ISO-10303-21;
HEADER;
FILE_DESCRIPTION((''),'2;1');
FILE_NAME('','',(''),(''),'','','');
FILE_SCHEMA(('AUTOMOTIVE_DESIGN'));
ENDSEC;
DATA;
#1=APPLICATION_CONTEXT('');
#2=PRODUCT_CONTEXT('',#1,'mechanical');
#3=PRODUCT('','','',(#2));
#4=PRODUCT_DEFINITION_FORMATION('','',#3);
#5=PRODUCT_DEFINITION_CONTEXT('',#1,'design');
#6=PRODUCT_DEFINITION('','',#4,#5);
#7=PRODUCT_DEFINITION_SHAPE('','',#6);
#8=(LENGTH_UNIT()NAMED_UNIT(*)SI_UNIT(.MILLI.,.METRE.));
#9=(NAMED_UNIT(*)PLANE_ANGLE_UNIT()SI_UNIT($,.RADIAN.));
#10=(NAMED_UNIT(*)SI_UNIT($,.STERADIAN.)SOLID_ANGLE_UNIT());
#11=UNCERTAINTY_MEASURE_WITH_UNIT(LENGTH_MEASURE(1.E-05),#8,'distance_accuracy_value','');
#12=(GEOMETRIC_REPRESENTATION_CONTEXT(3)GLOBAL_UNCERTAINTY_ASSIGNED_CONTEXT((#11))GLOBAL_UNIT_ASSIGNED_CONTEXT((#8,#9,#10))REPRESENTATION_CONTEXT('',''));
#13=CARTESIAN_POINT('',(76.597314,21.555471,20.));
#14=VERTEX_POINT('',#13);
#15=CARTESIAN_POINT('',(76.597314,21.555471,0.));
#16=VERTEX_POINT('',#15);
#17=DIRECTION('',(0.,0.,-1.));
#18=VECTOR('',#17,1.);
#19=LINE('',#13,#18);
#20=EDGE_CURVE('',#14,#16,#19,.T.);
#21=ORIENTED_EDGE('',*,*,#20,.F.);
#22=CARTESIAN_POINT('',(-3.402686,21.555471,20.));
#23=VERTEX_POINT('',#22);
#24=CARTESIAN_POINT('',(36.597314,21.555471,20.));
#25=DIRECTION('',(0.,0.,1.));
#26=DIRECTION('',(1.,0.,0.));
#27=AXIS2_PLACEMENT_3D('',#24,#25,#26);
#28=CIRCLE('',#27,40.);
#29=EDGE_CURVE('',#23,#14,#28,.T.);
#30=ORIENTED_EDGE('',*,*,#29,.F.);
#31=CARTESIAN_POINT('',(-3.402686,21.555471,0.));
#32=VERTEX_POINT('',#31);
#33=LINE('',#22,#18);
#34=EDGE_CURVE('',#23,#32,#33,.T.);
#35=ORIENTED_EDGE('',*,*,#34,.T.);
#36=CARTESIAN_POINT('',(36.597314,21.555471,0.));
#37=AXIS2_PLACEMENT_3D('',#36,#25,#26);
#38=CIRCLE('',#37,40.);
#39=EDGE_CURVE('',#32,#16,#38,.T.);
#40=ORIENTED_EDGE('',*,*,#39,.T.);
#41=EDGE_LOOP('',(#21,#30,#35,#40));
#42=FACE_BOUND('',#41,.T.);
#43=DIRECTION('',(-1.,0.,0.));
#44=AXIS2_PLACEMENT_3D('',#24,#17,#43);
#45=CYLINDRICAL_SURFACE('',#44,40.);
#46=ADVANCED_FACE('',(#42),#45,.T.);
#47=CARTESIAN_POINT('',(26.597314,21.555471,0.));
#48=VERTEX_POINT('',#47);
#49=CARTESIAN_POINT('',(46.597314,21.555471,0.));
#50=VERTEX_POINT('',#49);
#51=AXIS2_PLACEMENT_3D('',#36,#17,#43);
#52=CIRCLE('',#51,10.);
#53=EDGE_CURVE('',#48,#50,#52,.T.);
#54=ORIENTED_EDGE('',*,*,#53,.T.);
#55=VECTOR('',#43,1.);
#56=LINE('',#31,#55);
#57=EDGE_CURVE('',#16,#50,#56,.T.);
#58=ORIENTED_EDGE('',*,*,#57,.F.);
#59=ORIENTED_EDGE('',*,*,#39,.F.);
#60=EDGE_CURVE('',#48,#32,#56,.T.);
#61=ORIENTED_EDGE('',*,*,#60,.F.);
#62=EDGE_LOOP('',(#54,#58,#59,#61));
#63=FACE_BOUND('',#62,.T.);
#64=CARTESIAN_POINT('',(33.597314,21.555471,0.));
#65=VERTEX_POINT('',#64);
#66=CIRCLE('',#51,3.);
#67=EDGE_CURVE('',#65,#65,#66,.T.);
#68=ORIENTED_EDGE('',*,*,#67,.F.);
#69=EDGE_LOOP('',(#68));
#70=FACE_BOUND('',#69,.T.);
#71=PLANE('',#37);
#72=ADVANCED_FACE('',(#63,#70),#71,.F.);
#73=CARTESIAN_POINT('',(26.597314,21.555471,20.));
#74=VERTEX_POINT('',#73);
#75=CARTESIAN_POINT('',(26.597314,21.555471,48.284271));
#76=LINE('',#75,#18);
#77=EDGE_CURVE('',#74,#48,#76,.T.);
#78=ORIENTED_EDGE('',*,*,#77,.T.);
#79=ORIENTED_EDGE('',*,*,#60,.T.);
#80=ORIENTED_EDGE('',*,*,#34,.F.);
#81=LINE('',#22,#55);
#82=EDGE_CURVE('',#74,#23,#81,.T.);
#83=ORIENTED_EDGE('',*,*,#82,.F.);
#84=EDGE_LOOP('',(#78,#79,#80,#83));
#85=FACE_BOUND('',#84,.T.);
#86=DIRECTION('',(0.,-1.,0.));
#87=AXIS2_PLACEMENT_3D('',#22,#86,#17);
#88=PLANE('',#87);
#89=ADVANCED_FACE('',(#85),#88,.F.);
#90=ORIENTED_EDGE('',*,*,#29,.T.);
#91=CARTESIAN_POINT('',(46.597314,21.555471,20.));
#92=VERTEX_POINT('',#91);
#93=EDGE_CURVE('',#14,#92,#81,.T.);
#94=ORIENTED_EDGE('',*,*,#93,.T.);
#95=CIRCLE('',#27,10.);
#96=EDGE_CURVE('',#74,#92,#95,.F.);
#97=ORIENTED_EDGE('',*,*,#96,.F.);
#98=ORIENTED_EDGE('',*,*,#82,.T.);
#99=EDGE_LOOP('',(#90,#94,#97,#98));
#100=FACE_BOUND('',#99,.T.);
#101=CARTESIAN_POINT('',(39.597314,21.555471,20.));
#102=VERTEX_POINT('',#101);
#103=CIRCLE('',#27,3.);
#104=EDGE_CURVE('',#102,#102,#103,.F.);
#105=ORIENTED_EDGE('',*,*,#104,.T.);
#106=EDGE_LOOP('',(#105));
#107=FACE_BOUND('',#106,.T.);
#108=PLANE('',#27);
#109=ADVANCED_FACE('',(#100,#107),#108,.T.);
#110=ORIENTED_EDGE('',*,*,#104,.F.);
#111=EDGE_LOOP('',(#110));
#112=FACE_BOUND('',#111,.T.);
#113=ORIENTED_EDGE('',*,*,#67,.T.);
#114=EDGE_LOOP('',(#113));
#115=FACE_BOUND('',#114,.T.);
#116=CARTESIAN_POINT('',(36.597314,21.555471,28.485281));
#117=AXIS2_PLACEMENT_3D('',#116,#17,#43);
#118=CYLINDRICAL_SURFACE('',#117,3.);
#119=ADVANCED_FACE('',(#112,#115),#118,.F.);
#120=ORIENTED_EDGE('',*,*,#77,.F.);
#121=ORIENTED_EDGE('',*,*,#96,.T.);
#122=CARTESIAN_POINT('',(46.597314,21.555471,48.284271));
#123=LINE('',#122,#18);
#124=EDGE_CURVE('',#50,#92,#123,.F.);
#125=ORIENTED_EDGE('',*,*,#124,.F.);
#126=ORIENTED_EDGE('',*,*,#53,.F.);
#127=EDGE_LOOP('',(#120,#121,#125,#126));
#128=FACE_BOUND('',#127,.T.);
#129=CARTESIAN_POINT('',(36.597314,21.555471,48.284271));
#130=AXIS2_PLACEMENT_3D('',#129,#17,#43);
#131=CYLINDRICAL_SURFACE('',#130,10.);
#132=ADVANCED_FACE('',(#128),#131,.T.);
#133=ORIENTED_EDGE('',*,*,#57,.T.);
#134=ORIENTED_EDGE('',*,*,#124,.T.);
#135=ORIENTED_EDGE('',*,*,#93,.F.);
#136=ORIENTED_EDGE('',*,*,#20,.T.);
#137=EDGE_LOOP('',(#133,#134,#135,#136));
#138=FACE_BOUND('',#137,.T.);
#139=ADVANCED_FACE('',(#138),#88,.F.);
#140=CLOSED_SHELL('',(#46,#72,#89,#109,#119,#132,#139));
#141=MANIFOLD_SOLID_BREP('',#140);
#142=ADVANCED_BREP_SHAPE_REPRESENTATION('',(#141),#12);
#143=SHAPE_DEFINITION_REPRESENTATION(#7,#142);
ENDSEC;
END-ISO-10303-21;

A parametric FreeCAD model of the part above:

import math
import FreeCAD as App
import Part
import Sketcher

V = App.Vector

doc = App.newDocument("Part")
params = doc.addObject("Spreadsheet::Sheet", "Params")
for row, (alias, value) in enumerate([
    ("sketch1_radius", "40 mm"),
    ("pad1_length", "20 mm"),
    ("sketch2_diameter", "20 mm"),
    ("pad2_length", "20 mm"),
    ("sketch3_diameter", "6 mm"),
    ("pocket1_length", "20 mm"),
], start=1):
    params.set(f"A{row}", alias)
    params.set(f"B{row}", "=" + value)
    params.setAlias(f"B{row}", alias)

body = doc.addObject("PartDesign::Body", "Body")

# Sketch on XY plane
sketch1 = body.newObject("Sketcher::SketchObject", "Sketch")
sketch1.AttachmentSupport = (doc.getObject("XY_Plane"), [""])
sketch1.MapMode = "FlatFace"
sketch1.addGeometry([
    Part.LineSegment(V(77, 22, 0), V(-3, 22, 0)),
    Part.ArcOfCircle(Part.Circle(V(37, 22, 0), V(0, 0, 1), 40), math.radians(180), math.radians(360)),
], False)
sketch1.addConstraint([
    Sketcher.Constraint("Coincident", 0, 1, 1, 2),
    Sketcher.Constraint("Coincident", 1, 1, 0, 2),
    Sketcher.Constraint("Horizontal", 0),
    Sketcher.Constraint("Horizontal", 1, 3, 0, 1),
    Sketcher.Constraint("Radius", 1, 40.0),
    Sketcher.Constraint("DistanceY", -1, 1, 1, 3, 21.555471),
    Sketcher.Constraint("DistanceX", -1, 1, 1, 3, 36.597314),
])
sketch1.setExpression("Constraints[4]", "Params.sketch1_radius")
pad1 = body.newObject("PartDesign::Pad", "Pad")
pad1.Profile = sketch1
pad1.setExpression("Length", "Params.pad1_length")

# Sketch on XY plane
sketch2 = body.newObject("Sketcher::SketchObject", "Sketch001")
sketch2.AttachmentSupport = (doc.getObject("XY_Plane"), [""])
sketch2.MapMode = "FlatFace"
sketch2.addGeometry(Part.Circle(V(37, 22, 0), V(0, 0, 1), 10), False)
sketch2.addConstraint([
    Sketcher.Constraint("Diameter", 0, 20.0),
    Sketcher.Constraint("DistanceY", -1, 1, 0, 3, 21.555471),
    Sketcher.Constraint("DistanceX", -1, 1, 0, 3, 36.597314),
])
sketch2.setExpression("Constraints[0]", "Params.sketch2_diameter")
pad2 = body.newObject("PartDesign::Pad", "Pad001")
pad2.Profile = sketch2
pad2.setExpression("Length", "Params.pad2_length")

# Sketch on XY plane
sketch3 = body.newObject("Sketcher::SketchObject", "Sketch002")
sketch3.AttachmentSupport = (doc.getObject("XY_Plane"), [""])
sketch3.MapMode = "FlatFace"
sketch3.addGeometry(Part.Circle(V(36.6, 21.6, 0), V(0, 0, 1), 3), False)
sketch3.addConstraint([
    Sketcher.Constraint("Diameter", 0, 6.0),
    Sketcher.Constraint("DistanceY", -1, 1, 0, 3, 21.555471),
    Sketcher.Constraint("DistanceX", -1, 1, 0, 3, 36.597314),
])
sketch3.setExpression("Constraints[0]", "Params.sketch3_diameter")
pocket1 = body.newObject("PartDesign::Pocket", "Pocket")
pocket1.Profile = sketch3
pocket1.setExpression("Length", "Params.pocket1_length")
pocket1.Reversed = True

doc.recompute()
